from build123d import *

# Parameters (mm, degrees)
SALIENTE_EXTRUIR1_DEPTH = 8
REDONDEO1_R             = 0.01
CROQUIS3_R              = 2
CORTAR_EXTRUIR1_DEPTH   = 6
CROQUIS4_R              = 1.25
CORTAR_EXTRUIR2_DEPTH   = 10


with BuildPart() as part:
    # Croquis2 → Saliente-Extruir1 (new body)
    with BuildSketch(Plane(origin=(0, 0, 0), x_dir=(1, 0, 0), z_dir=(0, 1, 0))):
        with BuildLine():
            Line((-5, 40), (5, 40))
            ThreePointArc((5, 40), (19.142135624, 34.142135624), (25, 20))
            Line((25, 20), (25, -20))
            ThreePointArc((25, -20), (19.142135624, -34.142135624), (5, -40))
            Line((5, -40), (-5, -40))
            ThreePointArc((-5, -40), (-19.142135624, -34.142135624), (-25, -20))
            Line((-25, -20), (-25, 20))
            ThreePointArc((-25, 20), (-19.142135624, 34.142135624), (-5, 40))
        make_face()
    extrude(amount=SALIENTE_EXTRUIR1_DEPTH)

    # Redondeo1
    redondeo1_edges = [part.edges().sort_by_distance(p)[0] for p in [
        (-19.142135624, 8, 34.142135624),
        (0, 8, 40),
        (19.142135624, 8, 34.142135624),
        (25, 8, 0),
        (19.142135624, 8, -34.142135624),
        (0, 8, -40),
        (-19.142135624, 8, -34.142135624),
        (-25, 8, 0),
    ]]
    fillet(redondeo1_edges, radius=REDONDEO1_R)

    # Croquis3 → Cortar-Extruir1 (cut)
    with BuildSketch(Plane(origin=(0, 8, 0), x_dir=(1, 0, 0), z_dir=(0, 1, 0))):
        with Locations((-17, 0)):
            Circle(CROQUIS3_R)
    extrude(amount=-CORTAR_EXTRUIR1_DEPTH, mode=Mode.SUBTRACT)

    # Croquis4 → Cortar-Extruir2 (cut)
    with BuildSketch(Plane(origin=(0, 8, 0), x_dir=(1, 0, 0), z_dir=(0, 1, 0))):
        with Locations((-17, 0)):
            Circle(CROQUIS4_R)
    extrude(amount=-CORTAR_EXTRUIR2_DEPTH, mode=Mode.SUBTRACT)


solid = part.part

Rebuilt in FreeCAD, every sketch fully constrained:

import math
import FreeCAD as App
import Part
import Sketcher

V = App.Vector


def edges_at(feature, points):
    """Names of the edges that pass closest to the given points."""
    edges = feature.Shape.Edges
    near = lambda p: min(range(len(edges)), key=lambda i: edges[i].distToShape(Part.Vertex(*p))[0])
    return sorted({f"Edge{near(p) + 1}" for p in points})

doc = App.newDocument("Part")
body = doc.addObject("PartDesign::Body", "Body")

# Sketch on XZ plane
sketch1 = body.newObject("Sketcher::SketchObject", "Sketch")
sketch1.AttachmentSupport = (doc.getObject("XZ_Plane"), [""])
sketch1.MapMode = "FlatFace"
sketch1.addGeometry(Part.LineSegment(V(5, -40, 0), V(-5, -40, 0)), False)
sketch1.addGeometry(Part.ArcOfCircle(Part.Circle(V(-5, -20, 0), V(0, 0, 1), 20), math.radians(180), math.radians(270)), False)
sketch1.addGeometry(Part.LineSegment(V(-25, -20, 0), V(-25, 20, 0)), False)
sketch1.addGeometry(Part.ArcOfCircle(Part.Circle(V(-5, 20, 0), V(0, 0, 1), 20), math.radians(90), math.radians(180)), False)
sketch1.addGeometry(Part.LineSegment(V(-5, 40, 0), V(5, 40, 0)), False)
sketch1.addGeometry(Part.ArcOfCircle(Part.Circle(V(5, 20, 0), V(0, 0, 1), 20), math.radians(0), math.radians(90)), False)
sketch1.addGeometry(Part.LineSegment(V(25, 20, 0), V(25, -20, 0)), False)
sketch1.addGeometry(Part.ArcOfCircle(Part.Circle(V(5, -20, 0), V(0, 0, 1), 20), math.radians(-90), math.radians(0)), False)
sketch1.addConstraint(Sketcher.Constraint("Tangent", 0, 2, 1, 2))
sketch1.addConstraint(Sketcher.Constraint("Tangent", 1, 1, 2, 1))
sketch1.addConstraint(Sketcher.Constraint("Tangent", 2, 2, 3, 2))
sketch1.addConstraint(Sketcher.Constraint("Tangent", 3, 1, 4, 1))
sketch1.addConstraint(Sketcher.Constraint("Tangent", 4, 2, 5, 2))
sketch1.addConstraint(Sketcher.Constraint("Tangent", 5, 1, 6, 1))
sketch1.addConstraint(Sketcher.Constraint("Tangent", 6, 2, 7, 2))
sketch1.addConstraint(Sketcher.Constraint("Tangent", 7, 1, 0, 1))
sketch1.addConstraint(Sketcher.Constraint("Horizontal", 0))
sketch1.addConstraint(Sketcher.Constraint("Vertical", 2))
sketch1.addConstraint(Sketcher.Constraint("Horizontal", 4))
sketch1.addConstraint(Sketcher.Constraint("Vertical", 6))
sketch1.addConstraint(Sketcher.Constraint("Equal", 1, 3))
sketch1.addConstraint(Sketcher.Constraint("Equal", 3, 5))
sketch1.addConstraint(Sketcher.Constraint("Equal", 5, 7))
sketch1.addConstraint(Sketcher.Constraint("Symmetric", 1, 3, 5, 3, -1, 1))
sketch1.addConstraint(Sketcher.Constraint("Radius", 1, 20.0))
sketch1.addConstraint(Sketcher.Constraint("DistanceX", 0, 2, 0, 1, 10.0))
sketch1.addConstraint(Sketcher.Constraint("DistanceY", 2, 1, 2, 2, 40.0))
pad1 = body.newObject("PartDesign::Pad", "Pad")
pad1.Profile = sketch1
pad1.Length = 8
pad1.Reversed = True
doc.recompute()

fillet = body.newObject("PartDesign::Fillet", "Fillet")
fillet.Base = (pad1, edges_at(pad1, [
    (-19.142, 8, 34.142),
    (0, 8, 40),
    (19.142, 8, 34.142),
    (25, 8, 0),
    (19.142, 8, -34.142),
    (0, 8, -40),
    (-19.142, 8, -34.142),
    (-25, 8, 0),
]))
fillet.Radius = 0.01

# Sketch on XZ plane
sketch2 = body.newObject("Sketcher::SketchObject", "Sketch001")
sketch2.AttachmentSupport = (doc.getObject("XZ_Plane"), [""])
sketch2.MapMode = "FlatFace"
sketch2.AttachmentOffset = App.Placement(V(0, 0, -8), App.Rotation())
sketch2.addGeometry(Part.Circle(V(-17, 0, 0), V(0, 0, 1), 2), False)
sketch2.addConstraint(Sketcher.Constraint("PointOnObject", 0, 3, -1))
sketch2.addConstraint(Sketcher.Constraint("Diameter", 0, 4.0))
sketch2.addConstraint(Sketcher.Constraint("DistanceX", 0, 3, -1, 1, 17.0))
pocket1 = body.newObject("PartDesign::Pocket", "Pocket")
pocket1.Profile = sketch2
pocket1.Length = 6
pocket1.Reversed = True

# Sketch on XZ plane
sketch3 = body.newObject("Sketcher::SketchObject", "Sketch002")
sketch3.AttachmentSupport = (doc.getObject("XZ_Plane"), [""])
sketch3.MapMode = "FlatFace"
sketch3.AttachmentOffset = App.Placement(V(0, 0, -8), App.Rotation())
sketch3.addGeometry(Part.Circle(V(-17, 0, 0), V(0, 0, 1), 1.25), False)
sketch3.addConstraint(Sketcher.Constraint("PointOnObject", 0, 3, -1))
sketch3.addConstraint(Sketcher.Constraint("Diameter", 0, 2.5))
sketch3.addConstraint(Sketcher.Constraint("DistanceX", 0, 3, -1, 1, 17.0))
pocket2 = body.newObject("PartDesign::Pocket", "Pocket001")
pocket2.Profile = sketch3
pocket2.Length = 10
pocket2.Reversed = True

doc.recompute()
